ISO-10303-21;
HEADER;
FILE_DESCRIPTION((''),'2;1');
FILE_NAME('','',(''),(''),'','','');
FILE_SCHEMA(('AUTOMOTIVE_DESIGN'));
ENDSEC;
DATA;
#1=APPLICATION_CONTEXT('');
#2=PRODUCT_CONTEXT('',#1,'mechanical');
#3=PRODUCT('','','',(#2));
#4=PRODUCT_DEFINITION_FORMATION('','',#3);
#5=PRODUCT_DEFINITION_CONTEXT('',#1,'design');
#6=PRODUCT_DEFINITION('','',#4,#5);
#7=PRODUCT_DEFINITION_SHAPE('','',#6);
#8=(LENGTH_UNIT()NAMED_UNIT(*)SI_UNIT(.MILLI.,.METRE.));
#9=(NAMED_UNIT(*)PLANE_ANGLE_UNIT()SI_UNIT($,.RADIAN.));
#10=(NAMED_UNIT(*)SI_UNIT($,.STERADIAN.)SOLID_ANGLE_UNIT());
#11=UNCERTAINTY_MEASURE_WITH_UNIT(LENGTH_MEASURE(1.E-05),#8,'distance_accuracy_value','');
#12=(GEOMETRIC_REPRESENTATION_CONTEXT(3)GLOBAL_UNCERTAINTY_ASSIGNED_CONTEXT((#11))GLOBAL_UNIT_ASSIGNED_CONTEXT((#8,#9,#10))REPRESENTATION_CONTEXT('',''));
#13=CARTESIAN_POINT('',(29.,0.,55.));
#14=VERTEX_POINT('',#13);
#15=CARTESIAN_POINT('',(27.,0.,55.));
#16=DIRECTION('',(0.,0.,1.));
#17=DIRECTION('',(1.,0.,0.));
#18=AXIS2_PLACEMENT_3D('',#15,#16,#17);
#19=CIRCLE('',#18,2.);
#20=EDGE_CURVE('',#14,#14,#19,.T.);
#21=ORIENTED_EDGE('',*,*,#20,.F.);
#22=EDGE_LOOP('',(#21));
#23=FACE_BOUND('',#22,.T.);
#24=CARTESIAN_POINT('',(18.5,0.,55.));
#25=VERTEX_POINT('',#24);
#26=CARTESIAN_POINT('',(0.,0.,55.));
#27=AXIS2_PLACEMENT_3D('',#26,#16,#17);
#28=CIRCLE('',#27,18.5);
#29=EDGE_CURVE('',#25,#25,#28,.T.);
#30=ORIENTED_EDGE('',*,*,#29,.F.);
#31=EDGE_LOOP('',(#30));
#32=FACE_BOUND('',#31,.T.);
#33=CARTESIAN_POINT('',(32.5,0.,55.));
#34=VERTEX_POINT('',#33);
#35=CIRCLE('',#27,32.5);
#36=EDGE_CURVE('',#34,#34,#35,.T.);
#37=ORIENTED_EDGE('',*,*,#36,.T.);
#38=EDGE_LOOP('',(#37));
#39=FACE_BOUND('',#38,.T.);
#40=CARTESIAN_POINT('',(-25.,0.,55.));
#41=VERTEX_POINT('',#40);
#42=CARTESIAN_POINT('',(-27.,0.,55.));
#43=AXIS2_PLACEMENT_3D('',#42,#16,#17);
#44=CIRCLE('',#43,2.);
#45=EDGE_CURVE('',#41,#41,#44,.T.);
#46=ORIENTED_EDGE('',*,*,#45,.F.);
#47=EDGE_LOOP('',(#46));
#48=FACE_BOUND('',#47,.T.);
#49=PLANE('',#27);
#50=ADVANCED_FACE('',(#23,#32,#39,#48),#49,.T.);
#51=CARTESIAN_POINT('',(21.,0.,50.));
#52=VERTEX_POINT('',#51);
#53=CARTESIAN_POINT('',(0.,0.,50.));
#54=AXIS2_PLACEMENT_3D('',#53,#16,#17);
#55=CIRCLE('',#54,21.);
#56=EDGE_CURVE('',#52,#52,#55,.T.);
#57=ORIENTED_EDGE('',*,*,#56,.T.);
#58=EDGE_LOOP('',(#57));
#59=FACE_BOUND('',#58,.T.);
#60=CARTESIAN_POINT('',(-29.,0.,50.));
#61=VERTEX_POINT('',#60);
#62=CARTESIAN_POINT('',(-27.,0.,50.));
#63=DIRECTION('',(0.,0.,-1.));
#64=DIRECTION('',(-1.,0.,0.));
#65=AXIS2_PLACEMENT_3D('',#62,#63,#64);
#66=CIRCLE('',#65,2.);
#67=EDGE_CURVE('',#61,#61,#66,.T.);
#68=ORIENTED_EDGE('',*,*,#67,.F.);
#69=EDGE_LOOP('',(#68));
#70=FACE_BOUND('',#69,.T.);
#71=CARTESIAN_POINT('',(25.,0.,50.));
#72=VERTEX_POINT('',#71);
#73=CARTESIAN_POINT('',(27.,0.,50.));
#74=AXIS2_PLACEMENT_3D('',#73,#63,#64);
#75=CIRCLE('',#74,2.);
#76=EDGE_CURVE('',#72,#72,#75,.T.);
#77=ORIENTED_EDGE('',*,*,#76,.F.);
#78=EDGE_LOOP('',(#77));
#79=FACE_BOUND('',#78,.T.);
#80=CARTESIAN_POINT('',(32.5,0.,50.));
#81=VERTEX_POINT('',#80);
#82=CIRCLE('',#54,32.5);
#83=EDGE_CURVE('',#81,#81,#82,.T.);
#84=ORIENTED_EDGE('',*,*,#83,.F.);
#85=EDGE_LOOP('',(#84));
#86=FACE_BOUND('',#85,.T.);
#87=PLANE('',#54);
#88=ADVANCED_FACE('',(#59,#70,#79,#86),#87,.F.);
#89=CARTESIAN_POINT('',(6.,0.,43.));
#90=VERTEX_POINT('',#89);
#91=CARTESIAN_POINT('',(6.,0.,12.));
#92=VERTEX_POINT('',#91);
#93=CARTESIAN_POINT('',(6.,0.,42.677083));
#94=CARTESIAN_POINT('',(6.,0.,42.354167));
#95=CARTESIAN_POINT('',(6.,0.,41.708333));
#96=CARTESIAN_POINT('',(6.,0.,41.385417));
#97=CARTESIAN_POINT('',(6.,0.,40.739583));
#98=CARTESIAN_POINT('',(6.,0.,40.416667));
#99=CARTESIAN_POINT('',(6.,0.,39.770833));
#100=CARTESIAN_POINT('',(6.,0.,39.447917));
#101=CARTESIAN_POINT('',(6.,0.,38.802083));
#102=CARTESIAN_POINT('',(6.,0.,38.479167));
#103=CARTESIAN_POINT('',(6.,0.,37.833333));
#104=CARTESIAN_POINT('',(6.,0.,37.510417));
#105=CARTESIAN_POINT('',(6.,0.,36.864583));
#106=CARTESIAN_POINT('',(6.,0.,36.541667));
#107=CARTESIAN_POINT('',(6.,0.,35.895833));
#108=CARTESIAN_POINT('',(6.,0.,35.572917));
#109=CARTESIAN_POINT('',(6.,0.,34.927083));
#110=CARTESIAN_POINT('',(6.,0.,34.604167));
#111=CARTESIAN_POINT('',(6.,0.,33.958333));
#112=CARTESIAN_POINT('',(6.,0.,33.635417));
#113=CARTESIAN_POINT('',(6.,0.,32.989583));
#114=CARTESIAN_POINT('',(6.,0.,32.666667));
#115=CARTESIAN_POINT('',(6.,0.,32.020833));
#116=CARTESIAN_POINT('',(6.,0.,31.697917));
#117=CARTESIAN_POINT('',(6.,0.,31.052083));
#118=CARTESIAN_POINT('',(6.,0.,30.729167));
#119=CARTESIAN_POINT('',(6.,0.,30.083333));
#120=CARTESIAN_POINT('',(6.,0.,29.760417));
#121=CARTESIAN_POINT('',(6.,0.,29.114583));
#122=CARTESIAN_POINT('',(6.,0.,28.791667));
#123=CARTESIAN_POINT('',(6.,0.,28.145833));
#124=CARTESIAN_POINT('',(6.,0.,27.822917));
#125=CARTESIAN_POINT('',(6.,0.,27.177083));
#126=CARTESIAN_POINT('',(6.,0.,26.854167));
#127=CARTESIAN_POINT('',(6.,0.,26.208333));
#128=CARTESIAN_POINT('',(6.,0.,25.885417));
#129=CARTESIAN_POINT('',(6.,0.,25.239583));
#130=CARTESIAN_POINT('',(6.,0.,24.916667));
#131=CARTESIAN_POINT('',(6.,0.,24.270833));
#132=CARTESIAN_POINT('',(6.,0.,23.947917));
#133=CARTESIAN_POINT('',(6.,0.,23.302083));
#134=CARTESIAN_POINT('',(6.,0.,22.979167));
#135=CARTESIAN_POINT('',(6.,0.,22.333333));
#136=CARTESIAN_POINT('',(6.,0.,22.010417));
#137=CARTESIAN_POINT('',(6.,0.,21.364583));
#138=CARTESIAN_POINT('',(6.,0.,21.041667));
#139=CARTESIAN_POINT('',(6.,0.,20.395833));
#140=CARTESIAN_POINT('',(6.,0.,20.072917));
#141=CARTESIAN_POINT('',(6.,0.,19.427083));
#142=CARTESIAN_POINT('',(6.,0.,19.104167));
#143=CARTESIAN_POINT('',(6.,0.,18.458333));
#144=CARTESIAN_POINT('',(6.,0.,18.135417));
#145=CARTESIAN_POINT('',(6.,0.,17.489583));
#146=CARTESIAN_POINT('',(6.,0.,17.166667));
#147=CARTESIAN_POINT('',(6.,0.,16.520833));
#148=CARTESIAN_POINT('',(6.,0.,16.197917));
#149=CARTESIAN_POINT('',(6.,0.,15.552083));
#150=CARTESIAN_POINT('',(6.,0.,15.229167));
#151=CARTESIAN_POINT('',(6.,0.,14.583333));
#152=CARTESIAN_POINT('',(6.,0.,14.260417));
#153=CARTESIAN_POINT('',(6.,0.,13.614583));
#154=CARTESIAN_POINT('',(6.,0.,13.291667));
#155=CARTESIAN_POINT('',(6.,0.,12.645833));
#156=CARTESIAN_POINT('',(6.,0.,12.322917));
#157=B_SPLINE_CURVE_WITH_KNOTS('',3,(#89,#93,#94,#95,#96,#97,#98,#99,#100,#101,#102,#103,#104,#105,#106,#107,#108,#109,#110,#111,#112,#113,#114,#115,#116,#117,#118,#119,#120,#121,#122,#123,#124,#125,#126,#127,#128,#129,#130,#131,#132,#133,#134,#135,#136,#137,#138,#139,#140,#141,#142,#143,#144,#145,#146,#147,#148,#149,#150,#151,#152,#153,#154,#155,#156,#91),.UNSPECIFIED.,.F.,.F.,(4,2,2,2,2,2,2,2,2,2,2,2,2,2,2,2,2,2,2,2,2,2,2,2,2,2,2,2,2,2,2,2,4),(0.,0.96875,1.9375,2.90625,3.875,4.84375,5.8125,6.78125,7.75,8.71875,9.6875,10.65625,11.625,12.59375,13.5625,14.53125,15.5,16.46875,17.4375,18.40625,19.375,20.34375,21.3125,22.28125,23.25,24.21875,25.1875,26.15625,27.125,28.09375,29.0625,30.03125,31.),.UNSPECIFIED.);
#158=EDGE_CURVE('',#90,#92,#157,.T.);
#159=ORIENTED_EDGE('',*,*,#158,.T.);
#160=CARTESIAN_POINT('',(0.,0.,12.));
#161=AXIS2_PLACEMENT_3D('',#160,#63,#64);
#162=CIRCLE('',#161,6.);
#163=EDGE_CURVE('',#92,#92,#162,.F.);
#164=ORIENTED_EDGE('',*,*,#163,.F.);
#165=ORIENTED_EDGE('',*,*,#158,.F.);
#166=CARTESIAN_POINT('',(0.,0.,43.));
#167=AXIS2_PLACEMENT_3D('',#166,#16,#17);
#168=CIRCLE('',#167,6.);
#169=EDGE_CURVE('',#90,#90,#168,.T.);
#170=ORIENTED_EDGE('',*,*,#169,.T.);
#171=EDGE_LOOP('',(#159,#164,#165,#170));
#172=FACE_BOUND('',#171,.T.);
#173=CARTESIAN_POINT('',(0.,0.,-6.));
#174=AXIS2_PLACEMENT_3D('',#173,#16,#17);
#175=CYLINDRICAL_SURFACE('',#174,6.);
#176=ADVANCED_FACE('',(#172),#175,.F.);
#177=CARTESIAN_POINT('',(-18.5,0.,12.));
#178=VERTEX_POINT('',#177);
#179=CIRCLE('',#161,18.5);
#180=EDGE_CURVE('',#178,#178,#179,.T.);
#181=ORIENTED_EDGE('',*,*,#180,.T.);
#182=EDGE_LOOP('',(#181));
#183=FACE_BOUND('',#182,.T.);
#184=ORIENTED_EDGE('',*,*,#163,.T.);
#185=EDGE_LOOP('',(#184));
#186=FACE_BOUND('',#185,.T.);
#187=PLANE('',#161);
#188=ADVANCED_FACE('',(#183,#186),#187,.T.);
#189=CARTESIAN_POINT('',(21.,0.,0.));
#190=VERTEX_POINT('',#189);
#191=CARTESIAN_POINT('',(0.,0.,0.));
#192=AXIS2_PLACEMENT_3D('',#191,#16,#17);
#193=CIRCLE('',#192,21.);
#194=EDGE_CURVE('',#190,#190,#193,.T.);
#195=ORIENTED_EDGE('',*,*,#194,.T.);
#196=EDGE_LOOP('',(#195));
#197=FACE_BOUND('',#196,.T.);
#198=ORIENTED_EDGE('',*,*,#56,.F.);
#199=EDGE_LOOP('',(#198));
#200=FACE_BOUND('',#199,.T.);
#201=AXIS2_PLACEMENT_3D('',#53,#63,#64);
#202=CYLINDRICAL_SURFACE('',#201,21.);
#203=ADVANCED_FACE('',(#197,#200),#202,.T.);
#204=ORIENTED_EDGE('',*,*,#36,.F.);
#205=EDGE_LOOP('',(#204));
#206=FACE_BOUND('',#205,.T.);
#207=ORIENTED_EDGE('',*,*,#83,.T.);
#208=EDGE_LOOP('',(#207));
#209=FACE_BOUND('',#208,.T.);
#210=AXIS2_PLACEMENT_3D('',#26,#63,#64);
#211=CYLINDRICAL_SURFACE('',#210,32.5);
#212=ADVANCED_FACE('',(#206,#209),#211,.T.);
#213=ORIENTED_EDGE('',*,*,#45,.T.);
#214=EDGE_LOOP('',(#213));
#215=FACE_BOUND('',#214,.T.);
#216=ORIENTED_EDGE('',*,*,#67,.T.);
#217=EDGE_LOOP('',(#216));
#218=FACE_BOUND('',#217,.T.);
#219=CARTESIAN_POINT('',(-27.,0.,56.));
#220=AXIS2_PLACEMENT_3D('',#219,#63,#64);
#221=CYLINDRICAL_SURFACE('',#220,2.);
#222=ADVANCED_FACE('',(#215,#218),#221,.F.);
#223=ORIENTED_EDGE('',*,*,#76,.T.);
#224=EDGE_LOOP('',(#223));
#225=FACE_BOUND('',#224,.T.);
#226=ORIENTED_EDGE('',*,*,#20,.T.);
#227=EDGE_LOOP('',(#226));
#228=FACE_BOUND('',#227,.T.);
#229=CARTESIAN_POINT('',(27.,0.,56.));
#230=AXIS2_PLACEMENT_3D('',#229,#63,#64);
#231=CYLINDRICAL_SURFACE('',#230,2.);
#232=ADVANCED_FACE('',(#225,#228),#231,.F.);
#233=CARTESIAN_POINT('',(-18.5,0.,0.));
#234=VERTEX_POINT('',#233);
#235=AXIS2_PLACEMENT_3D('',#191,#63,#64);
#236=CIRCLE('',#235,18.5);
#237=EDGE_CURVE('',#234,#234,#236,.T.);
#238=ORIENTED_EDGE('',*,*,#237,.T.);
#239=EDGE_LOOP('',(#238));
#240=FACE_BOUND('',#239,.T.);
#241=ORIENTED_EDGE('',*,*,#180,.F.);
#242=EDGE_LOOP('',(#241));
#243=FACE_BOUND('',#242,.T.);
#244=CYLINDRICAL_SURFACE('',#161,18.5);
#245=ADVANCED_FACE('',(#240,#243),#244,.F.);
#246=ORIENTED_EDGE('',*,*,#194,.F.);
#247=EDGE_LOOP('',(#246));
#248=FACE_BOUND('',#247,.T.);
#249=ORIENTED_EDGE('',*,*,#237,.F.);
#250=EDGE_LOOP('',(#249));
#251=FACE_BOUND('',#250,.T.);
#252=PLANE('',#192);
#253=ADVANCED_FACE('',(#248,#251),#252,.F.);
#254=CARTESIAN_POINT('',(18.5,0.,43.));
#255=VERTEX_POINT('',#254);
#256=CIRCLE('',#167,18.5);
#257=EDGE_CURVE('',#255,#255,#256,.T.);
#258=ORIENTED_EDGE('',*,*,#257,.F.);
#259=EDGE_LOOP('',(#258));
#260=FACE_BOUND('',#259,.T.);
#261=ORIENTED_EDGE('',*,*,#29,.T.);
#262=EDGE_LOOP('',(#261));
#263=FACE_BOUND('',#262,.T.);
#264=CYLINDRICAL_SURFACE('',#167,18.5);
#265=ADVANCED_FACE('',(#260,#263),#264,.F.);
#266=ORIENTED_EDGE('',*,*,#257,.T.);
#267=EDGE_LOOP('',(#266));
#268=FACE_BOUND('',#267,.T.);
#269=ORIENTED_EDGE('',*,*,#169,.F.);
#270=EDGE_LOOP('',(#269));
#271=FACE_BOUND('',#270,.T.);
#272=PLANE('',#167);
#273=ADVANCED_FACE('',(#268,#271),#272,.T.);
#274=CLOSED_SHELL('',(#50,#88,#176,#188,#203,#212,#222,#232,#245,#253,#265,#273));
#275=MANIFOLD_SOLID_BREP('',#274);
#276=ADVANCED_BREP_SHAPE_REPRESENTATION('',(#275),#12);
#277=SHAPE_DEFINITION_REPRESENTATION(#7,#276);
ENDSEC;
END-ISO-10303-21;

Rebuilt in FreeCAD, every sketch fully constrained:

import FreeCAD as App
import Part
import Sketcher

V = App.Vector

doc = App.newDocument("Part")
body = doc.addObject("PartDesign::Body", "Body")

sketch1 = body.newObject("Sketcher::SketchObject", "Sketch")
sketch1.AttachmentSupport = (doc.getObject("XY_Plane"), [""])
sketch1.MapMode = "FlatFace"
sketch1.addGeometry(Part.Circle(V(0, 0, 0), V(0, 0, 1), 21), False)
sketch1.addConstraint([
    Sketcher.Constraint("Coincident", 0, 3, -1, 1),
    Sketcher.Constraint("Diameter", 0, 42.0),
])
pad1 = body.newObject("PartDesign::Pad", "Pad")
pad1.Profile = sketch1
pad1.Length = 50

sketch2 = body.newObject("Sketcher::SketchObject", "Sketch001")
sketch2.AttachmentSupport = (doc.getObject("XY_Plane"), [""])
sketch2.MapMode = "FlatFace"
sketch2.AttachmentOffset = App.Placement(V(0, 0, 50), App.Rotation())
sketch2.addGeometry(Part.Circle(V(0, 0, 0), V(0, 0, 1), 32), False)
sketch2.addConstraint([
    Sketcher.Constraint("Coincident", 0, 3, -1, 1),
    Sketcher.Constraint("Diameter", 0, 65.0),
])
pad2 = body.newObject("PartDesign::Pad", "Pad001")
pad2.Profile = sketch2
pad2.Length = 5

sketch3 = body.newObject("Sketcher::SketchObject", "Sketch002")
sketch3.AttachmentSupport = (doc.getObject("XY_Plane"), [""])
sketch3.MapMode = "FlatFace"
sketch3.AttachmentOffset = App.Placement(V(0, 0, 55), App.Rotation())
sketch3.addGeometry(Part.Circle(V(0, 0, 0), V(0, 0, 1), 18), False)
sketch3.addConstraint([
    Sketcher.Constraint("Coincident", 0, 3, -1, 1),
    Sketcher.Constraint("Diameter", 0, 37.0),
])
pocket1 = body.newObject("PartDesign::Pocket", "Pocket")
pocket1.Profile = sketch3
pocket1.Length = 12

sketch4 = body.newObject("Sketcher::SketchObject", "Sketch003")
sketch4.AttachmentSupport = (doc.getObject("XY_Plane"), [""])
sketch4.MapMode = "FlatFace"
sketch4.AttachmentOffset = App.Placement(V(0, 0, 43), App.Rotation())
sketch4.addGeometry(Part.Circle(V(0, 0, 0), V(0, 0, 1), 6), False)
sketch4.addConstraint([
    Sketcher.Constraint("Coincident", 0, 3, -1, 1),
    Sketcher.Constraint("Diameter", 0, 12.0),
])
pocket2 = body.newObject("PartDesign::Pocket", "Pocket001")
pocket2.Profile = sketch4
pocket2.Length = 49

sketch5 = body.newObject("Sketcher::SketchObject", "Sketch004")
sketch5.AttachmentSupport = (doc.getObject("XY_Plane"), [""])
sketch5.MapMode = "FlatFace"
sketch5.AttachmentOffset = App.Placement(V(0, 0, 12), App.Rotation())
sketch5.addGeometry(Part.Circle(V(0, 0, 0), V(0, 0, 1), 18), False)
sketch5.addConstraint([
    Sketcher.Constraint("Coincident", 0, 3, -1, 1),
    Sketcher.Constraint("Diameter", 0, 37.0),
])
pocket3 = body.newObject("PartDesign::Pocket", "Pocket002")
pocket3.Profile = sketch5
pocket3.Length = 12

sketch6 = body.newObject("Sketcher::SketchObject", "Sketch005")
sketch6.AttachmentSupport = (doc.getObject("XY_Plane"), [""])
sketch6.MapMode = "FlatFace"
sketch6.AttachmentOffset = App.Placement(V(0, 0, 50), App.Rotation())
sketch6.addGeometry([
    Part.Circle(V(-27, 0, 0), V(0, 0, 1), 2),
    Part.Circle(V(27, 0, 0), V(0, 0, 1), 2),
], False)
sketch6.addConstraint([
    Sketcher.Constraint("Equal", 0, 1),
    Sketcher.Constraint("Symmetric", 0, 3, 1, 3, -1, 1),
    Sketcher.Constraint("PointOnObject", 0, 3, -1),
    Sketcher.Constraint("Diameter", 0, 4.0),
    Sketcher.Constraint("DistanceX", 0, 3, -1, 1, 27.0),
])
pocket4 = body.newObject("PartDesign::Pocket", "Pocket003")
pocket4.Profile = sketch6
pocket4.Length = 6
pocket4.Reversed = True

doc.recompute()
